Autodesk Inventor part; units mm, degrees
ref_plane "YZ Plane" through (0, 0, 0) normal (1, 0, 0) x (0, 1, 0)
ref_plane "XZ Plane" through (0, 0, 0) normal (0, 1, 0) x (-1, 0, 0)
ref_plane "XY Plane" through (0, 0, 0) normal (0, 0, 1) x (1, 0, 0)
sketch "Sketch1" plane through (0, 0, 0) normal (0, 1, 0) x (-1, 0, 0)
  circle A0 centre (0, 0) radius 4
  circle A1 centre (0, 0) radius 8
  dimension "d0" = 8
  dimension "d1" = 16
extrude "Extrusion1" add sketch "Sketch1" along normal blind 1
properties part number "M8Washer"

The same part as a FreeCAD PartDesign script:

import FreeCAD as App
import Part
import Sketcher
from FreeCAD import Vector
Q = App.Units.Quantity

doc = App.newDocument("Part")
params = doc.addObject("Spreadsheet::Sheet", "Params")
for row, (alias, value) in enumerate([
    ("sketch1_diameter", "16 mm"),
    ("sketch1_diameter2", "8 mm"),
    ("pad1_length", "1 mm"),
], start=1):
    params.set(f"A{row}", alias)
    params.set(f"B{row}", "=" + value)
    params.setAlias(f"B{row}", alias)

body = doc.addObject("PartDesign::Body", "Body")

sketch1 = body.newObject("Sketcher::SketchObject", "Sketch")
sketch1.AttachmentSupport = (doc.getObject("XZ_Plane"), [""])
sketch1.MapMode = "FlatFace"
sketch1.addGeometry([
    Part.Circle(Vector(0, 0, 0), Vector(0, 0, 1), 8),
    Part.Circle(Vector(0, 0, 0), Vector(0, 0, 1), 4),
], False)
sketch1.addConstraint([
    Sketcher.Constraint("Coincident", 0, 3, -1, 1),
    Sketcher.Constraint("Coincident", 1, 3, -1, 1),
    Sketcher.Constraint("Diameter", 0, Q("16 mm")),
    Sketcher.Constraint("Diameter", 1, Q("8 mm")),
])
sketch1.setExpression("Constraints[2]", "Params.sketch1_diameter")
sketch1.setExpression("Constraints[3]", "Params.sketch1_diameter2")
pad1 = body.newObject("PartDesign::Pad", "Pad")
pad1.Profile = sketch1
pad1.setExpression("Length", "Params.pad1_length")
pad1.Reversed = True

doc.recompute()
